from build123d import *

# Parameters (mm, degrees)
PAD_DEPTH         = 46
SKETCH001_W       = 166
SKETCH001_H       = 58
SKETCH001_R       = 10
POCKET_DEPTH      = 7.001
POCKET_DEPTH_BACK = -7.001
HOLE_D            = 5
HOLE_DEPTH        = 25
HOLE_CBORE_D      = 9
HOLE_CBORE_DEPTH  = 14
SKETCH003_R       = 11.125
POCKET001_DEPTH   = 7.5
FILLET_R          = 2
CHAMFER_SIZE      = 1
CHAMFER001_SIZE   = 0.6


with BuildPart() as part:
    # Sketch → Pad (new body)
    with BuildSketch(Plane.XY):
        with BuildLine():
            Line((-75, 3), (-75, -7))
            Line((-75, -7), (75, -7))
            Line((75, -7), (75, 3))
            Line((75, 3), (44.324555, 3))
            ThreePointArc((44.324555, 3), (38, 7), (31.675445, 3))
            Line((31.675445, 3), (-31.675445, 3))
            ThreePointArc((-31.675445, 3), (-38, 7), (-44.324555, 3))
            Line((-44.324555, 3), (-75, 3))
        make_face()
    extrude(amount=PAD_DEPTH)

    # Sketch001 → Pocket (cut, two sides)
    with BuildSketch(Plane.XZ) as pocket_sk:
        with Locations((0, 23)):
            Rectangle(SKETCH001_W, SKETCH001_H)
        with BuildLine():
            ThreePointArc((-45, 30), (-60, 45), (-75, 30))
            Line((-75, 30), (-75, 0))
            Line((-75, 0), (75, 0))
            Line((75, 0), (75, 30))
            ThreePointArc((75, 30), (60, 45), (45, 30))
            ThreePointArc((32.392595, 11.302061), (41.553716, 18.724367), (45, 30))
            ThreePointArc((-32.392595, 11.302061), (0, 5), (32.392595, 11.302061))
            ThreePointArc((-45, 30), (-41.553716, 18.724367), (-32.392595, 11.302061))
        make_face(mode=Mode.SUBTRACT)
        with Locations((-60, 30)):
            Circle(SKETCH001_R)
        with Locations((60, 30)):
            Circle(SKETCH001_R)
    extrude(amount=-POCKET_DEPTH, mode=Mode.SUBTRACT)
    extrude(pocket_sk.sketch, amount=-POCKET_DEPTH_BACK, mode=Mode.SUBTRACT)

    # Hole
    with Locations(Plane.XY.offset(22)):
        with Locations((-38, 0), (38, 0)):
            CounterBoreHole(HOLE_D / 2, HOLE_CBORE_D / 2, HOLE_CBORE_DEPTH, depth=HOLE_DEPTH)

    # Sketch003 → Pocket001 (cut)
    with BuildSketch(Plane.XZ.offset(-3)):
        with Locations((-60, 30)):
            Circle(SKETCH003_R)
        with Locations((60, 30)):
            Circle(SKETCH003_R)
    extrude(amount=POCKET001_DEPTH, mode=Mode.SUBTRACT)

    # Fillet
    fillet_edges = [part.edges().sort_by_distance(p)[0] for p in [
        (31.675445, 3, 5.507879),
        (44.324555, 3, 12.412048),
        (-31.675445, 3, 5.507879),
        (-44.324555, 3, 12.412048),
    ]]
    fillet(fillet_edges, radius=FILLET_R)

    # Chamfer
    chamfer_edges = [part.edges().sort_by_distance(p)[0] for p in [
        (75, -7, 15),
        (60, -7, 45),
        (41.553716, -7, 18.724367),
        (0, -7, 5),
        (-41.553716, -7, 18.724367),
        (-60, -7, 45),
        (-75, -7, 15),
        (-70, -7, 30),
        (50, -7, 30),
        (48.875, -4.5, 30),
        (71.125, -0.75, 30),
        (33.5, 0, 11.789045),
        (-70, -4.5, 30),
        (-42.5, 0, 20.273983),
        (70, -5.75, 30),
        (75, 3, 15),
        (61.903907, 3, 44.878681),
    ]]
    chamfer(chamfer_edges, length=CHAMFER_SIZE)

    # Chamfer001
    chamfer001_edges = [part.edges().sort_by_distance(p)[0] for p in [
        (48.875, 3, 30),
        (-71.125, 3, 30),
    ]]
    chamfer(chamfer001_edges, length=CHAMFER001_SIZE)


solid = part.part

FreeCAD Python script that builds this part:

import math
import FreeCAD as App
import Part
import Sketcher

V = App.Vector
Q = App.Units.Quantity


def edges_at(feature, points):
    """Names of the edges that pass closest to the given points."""
    edges = feature.Shape.Edges
    near = lambda p: min(range(len(edges)), key=lambda i: edges[i].distToShape(Part.Vertex(*p))[0])
    return sorted({f"Edge{near(p) + 1}" for p in points})

doc = App.newDocument("Part")
body = doc.addObject("PartDesign::Body", "Body")

sketch1 = body.newObject("Sketcher::SketchObject", "Sketch")
sketch1.AttachmentSupport = (doc.getObject("XY_Plane"), [""])
sketch1.MapMode = "FlatFace"
sketch1.addGeometry([
    Part.LineSegment(V(-75, 3, 0), V(-75, -7, 0)),
    Part.LineSegment(V(-75, -7, 0), V(75, -7, 0)),
    Part.LineSegment(V(75, -7, 0), V(75, 3, 0)),
    Part.LineSegment(V(75, 3, 0), V(44.324555, 3, 0)),
    Part.ArcOfCircle(Part.Circle(V(38, 0.000001, 0), V(0, 0, 1), 6.999999), math.radians(25.376931), math.radians(154.623069)),
    Part.LineSegment(V(31.675445, 3, 0), V(-31.675445, 3, 0)),
    Part.ArcOfCircle(Part.Circle(V(-38, 0.000001, 0), V(0, 0, 1), 6.999999), math.radians(25.376931), math.radians(154.623069)),
    Part.LineSegment(V(-44.324555, 3, 0), V(-75, 3, 0)),
], False)
sketch1.addConstraint([
    Sketcher.Constraint("Coincident", 0, 2, 1, 1),
    Sketcher.Constraint("Coincident", 1, 2, 2, 1),
    Sketcher.Constraint("Coincident", 2, 2, 3, 1),
    Sketcher.Constraint("Coincident", 3, 2, 4, 1),
    Sketcher.Constraint("Coincident", 4, 2, 5, 1),
    Sketcher.Constraint("Coincident", 5, 2, 6, 1),
    Sketcher.Constraint("Coincident", 6, 2, 7, 1),
    Sketcher.Constraint("Coincident", 7, 2, 0, 1),
    Sketcher.Constraint("Vertical", 0),
    Sketcher.Constraint("Horizontal", 1),
    Sketcher.Constraint("Vertical", 2),
    Sketcher.Constraint("Horizontal", 3),
    Sketcher.Constraint("Horizontal", 5),
    Sketcher.Constraint("Horizontal", 7),
    Sketcher.Constraint("Equal", 4, 6),
    Sketcher.Constraint("Symmetric", 4, 3, 6, 3, -1, 1),
    Sketcher.Constraint("Symmetric", 3, 2, 6, 2, -2),
    Sketcher.Constraint("Horizontal", 3, 2, 4, 2),
    Sketcher.Constraint("Equal", 3, 7),
    Sketcher.Constraint("Radius", 4, Q("6.999999 mm")),
    Sketcher.Constraint("DistanceX", 1, 1, 1, 2, Q("150 mm")),
    Sketcher.Constraint("DistanceY", 0, 2, 0, 1, Q("10 mm")),
    Sketcher.Constraint("DistanceX", -1, 1, 4, 3, Q("38 mm")),
    Sketcher.Constraint("DistanceY", 0, 2, -1, 1, Q("7 mm")),
])
pad1 = body.newObject("PartDesign::Pad", "Pad")
pad1.Profile = sketch1
pad1.Length = 46

sketch2 = body.newObject("Sketcher::SketchObject", "Sketch001")
sketch2.AttachmentSupport = (doc.getObject("XZ_Plane"), [""])
sketch2.MapMode = "FlatFace"
sketch2.addGeometry([
    Part.LineSegment(V(-83, 52, 0), V(-83, -6, 0)),
    Part.LineSegment(V(-83, -6, 0), V(83, -6, 0)),
    Part.LineSegment(V(83, -6, 0), V(83, 52, 0)),
    Part.LineSegment(V(83, 52, 0), V(-83, 52, 0)),
    Part.ArcOfCircle(Part.Circle(V(-60, 30, 0), V(0, 0, 1), 15), math.radians(0), math.radians(180)),
    Part.ArcOfCircle(Part.Circle(V(-24.830917, 30, 0), V(0, 0, 1), 20.169083), math.radians(180), math.radians(247.980984)),
    Part.ArcOfCircle(Part.Circle(V(0, 91.400003, 0), V(0, 0, 1), 86.400003), math.radians(-112.019015), math.radians(-67.980985)),
    Part.ArcOfCircle(Part.Circle(V(24.830917, 30, 0), V(0, 0, 1), 20.169083), math.radians(-67.980984), math.radians(0)),
    Part.ArcOfCircle(Part.Circle(V(60, 30, 0), V(0, 0, 1), 15), math.radians(0), math.radians(180)),
    Part.LineSegment(V(75, 30, 0), V(75, 0, 0)),
    Part.LineSegment(V(75, 0, 0), V(-75, 0, 0)),
    Part.LineSegment(V(-75, 0, 0), V(-75, 30, 0)),
    Part.Circle(V(-60, 30, 0), V(0, 0, 1), 10),
    Part.Circle(V(60, 30, 0), V(0, 0, 1), 10),
], False)
sketch2.addConstraint([
    Sketcher.Constraint("Coincident", 0, 2, 1, 1),
    Sketcher.Constraint("Coincident", 1, 2, 2, 1),
    Sketcher.Constraint("Coincident", 2, 2, 3, 1),
    Sketcher.Constraint("Coincident", 3, 2, 0, 1),
    Sketcher.Constraint("Tangent", 4, 1, 5, 1),
    Sketcher.Constraint("Tangent", 5, 2, 6, 1),
    Sketcher.Constraint("Tangent", 6, 2, 7, 1),
    Sketcher.Constraint("Tangent", 7, 2, 8, 2),
    Sketcher.Constraint("Tangent", 8, 1, 9, 1),
    Sketcher.Constraint("Coincident", 9, 2, 10, 1),
    Sketcher.Constraint("Coincident", 10, 2, 11, 1),
    Sketcher.Constraint("Tangent", 11, 2, 4, 2),
    Sketcher.Constraint("Vertical", 0),
    Sketcher.Constraint("Horizontal", 1),
    Sketcher.Constraint("Vertical", 2),
    Sketcher.Constraint("Horizontal", 3),
    Sketcher.Constraint("Vertical", 9),
    Sketcher.Constraint("Horizontal", 10),
    Sketcher.Constraint("Vertical", 11),
    Sketcher.Constraint("Coincident", 12, 3, 4, 3),
    Sketcher.Constraint("Coincident", 13, 3, 8, 3),
    Sketcher.Constraint("Equal", 5, 7),
    Sketcher.Constraint("Equal", 4, 8),
    Sketcher.Constraint("Equal", 12, 13),
    Sketcher.Constraint("Symmetric", 9, 2, 10, 2, -1, 1),
    Sketcher.Constraint("PointOnObject", 6, 3, -2),
    Sketcher.Constraint("Horizontal", 4, 3, 5, 3),
    Sketcher.Constraint("Horizontal", 7, 3, 8, 3),
    Sketcher.Constraint("Diameter", 12, Q("20 mm")),
    Sketcher.Constraint("Radius", 4, Q("15 mm")),
    Sketcher.Constraint("DistanceX", 1, 1, 1, 2, Q("166 mm")),
    Sketcher.Constraint("DistanceX", 10, 2, 10, 1, Q("150 mm")),
    Sketcher.Constraint("DistanceY", 0, 2, 0, 1, Q("58 mm")),
    Sketcher.Constraint("DistanceY", 9, 2, 9, 1, Q("30 mm")),
    Sketcher.Constraint("DistanceX", 0, 2, -1, 1, Q("83 mm")),
    Sketcher.Constraint("DistanceY", 0, 2, -1, 1, Q("6 mm")),
    Sketcher.Constraint("Radius", 5, Q("20.169083 mm")),
    Sketcher.Constraint("Radius", 6, Q("86.400003 mm")),
])
pocket1 = body.newObject("PartDesign::Pocket", "Pocket")
pocket1.Profile = sketch2
pocket1.Type = "ThroughAll"
pocket1.Midplane = True

sketch3 = body.newObject("Sketcher::SketchObject", "Sketch002")
sketch3.AttachmentSupport = (doc.getObject("XY_Plane"), [""])
sketch3.MapMode = "FlatFace"
sketch3.AttachmentOffset = App.Placement(V(0, 0, 22), App.Rotation())
sketch3.addGeometry([
    Part.Circle(V(-38, 0, 0), V(0, 0, 1), 2.5),
    Part.Circle(V(38, 0, 0), V(0, 0, 1), 2.5),
], False)
sketch3.addConstraint([
    Sketcher.Constraint("Equal", 0, 1),
    Sketcher.Constraint("Symmetric", 0, 3, 1, 3, -1, 1),
    Sketcher.Constraint("PointOnObject", 0, 3, -1),
    Sketcher.Constraint("Diameter", 0, Q("5 mm")),
    Sketcher.Constraint("DistanceX", 0, 3, -1, 1, Q("38 mm")),
])
doc.recompute()
hole = body.newObject("PartDesign::Hole", "Hole")
hole.Profile = sketch3
hole.ThreadType = "None"
hole.Diameter = 5
hole.DepthType = "Dimension"
hole.Depth = 25
hole.DrillPoint = "Flat"
hole.HoleCutType = "Counterbore"
hole.HoleCutDiameter = 9
hole.HoleCutDepth = 14

sketch4 = body.newObject("Sketcher::SketchObject", "Sketch003")
sketch4.AttachmentSupport = (doc.getObject("XZ_Plane"), [""])
sketch4.MapMode = "FlatFace"
sketch4.AttachmentOffset = App.Placement(V(0, 0, -3), App.Rotation())
sketch4.addGeometry([
    Part.Circle(V(-60, 30, 0), V(0, 0, 1), 11.125),
    Part.Circle(V(60, 30, 0), V(0, 0, 1), 11.125),
], False)
sketch4.addConstraint([
    Sketcher.Constraint("Equal", 0, 1),
    Sketcher.Constraint("Symmetric", 0, 3, 1, 3, -2),
    Sketcher.Constraint("Diameter", 0, Q("22.25 mm")),
    Sketcher.Constraint("DistanceX", 0, 3, -1, 1, Q("60 mm")),
    Sketcher.Constraint("DistanceY", -1, 1, 0, 3, Q("30 mm")),
])
pocket2 = body.newObject("PartDesign::Pocket", "Pocket001")
pocket2.Profile = sketch4
pocket2.Length = 7.5
pocket2.Reversed = True
doc.recompute()

fillet = body.newObject("PartDesign::Fillet", "Fillet")
fillet.Base = (pocket2, edges_at(pocket2, [
    (31.675, 3, 5.508),
    (44.325, 3, 12.412),
    (-31.675, 3, 5.508),
    (-44.325, 3, 12.412),
]))
fillet.Radius = 2
doc.recompute()

chamfer = body.newObject("PartDesign::Chamfer", "Chamfer")
chamfer.Base = (fillet, edges_at(fillet, [
    (75, -7, 15),
    (60, -7, 45),
    (41.554, -7, 18.724),
    (0, -7, 5),
    (-41.554, -7, 18.724),
    (-60, -7, 45),
    (-75, -7, 15),
    (-70, -7, 30),
    (50, -7, 30),
    (48.875, -4.5, 30),
    (71.125, -0.75, 30),
    (33.5, 0, 11.789),
    (-70, -4.5, 30),
    (-42.5, 0, 20.274),
    (70, -5.75, 30),
    (75, 3, 15),
    (61.904, 3, 44.879),
]))
chamfer.Size = 1
doc.recompute()

chamfer2 = body.newObject("PartDesign::Chamfer", "Chamfer001")
chamfer2.Base = (chamfer, edges_at(chamfer, [(48.875, 3, 30), (-71.125, 3, 30)]))
chamfer2.Size = 0.6

doc.recompute()
